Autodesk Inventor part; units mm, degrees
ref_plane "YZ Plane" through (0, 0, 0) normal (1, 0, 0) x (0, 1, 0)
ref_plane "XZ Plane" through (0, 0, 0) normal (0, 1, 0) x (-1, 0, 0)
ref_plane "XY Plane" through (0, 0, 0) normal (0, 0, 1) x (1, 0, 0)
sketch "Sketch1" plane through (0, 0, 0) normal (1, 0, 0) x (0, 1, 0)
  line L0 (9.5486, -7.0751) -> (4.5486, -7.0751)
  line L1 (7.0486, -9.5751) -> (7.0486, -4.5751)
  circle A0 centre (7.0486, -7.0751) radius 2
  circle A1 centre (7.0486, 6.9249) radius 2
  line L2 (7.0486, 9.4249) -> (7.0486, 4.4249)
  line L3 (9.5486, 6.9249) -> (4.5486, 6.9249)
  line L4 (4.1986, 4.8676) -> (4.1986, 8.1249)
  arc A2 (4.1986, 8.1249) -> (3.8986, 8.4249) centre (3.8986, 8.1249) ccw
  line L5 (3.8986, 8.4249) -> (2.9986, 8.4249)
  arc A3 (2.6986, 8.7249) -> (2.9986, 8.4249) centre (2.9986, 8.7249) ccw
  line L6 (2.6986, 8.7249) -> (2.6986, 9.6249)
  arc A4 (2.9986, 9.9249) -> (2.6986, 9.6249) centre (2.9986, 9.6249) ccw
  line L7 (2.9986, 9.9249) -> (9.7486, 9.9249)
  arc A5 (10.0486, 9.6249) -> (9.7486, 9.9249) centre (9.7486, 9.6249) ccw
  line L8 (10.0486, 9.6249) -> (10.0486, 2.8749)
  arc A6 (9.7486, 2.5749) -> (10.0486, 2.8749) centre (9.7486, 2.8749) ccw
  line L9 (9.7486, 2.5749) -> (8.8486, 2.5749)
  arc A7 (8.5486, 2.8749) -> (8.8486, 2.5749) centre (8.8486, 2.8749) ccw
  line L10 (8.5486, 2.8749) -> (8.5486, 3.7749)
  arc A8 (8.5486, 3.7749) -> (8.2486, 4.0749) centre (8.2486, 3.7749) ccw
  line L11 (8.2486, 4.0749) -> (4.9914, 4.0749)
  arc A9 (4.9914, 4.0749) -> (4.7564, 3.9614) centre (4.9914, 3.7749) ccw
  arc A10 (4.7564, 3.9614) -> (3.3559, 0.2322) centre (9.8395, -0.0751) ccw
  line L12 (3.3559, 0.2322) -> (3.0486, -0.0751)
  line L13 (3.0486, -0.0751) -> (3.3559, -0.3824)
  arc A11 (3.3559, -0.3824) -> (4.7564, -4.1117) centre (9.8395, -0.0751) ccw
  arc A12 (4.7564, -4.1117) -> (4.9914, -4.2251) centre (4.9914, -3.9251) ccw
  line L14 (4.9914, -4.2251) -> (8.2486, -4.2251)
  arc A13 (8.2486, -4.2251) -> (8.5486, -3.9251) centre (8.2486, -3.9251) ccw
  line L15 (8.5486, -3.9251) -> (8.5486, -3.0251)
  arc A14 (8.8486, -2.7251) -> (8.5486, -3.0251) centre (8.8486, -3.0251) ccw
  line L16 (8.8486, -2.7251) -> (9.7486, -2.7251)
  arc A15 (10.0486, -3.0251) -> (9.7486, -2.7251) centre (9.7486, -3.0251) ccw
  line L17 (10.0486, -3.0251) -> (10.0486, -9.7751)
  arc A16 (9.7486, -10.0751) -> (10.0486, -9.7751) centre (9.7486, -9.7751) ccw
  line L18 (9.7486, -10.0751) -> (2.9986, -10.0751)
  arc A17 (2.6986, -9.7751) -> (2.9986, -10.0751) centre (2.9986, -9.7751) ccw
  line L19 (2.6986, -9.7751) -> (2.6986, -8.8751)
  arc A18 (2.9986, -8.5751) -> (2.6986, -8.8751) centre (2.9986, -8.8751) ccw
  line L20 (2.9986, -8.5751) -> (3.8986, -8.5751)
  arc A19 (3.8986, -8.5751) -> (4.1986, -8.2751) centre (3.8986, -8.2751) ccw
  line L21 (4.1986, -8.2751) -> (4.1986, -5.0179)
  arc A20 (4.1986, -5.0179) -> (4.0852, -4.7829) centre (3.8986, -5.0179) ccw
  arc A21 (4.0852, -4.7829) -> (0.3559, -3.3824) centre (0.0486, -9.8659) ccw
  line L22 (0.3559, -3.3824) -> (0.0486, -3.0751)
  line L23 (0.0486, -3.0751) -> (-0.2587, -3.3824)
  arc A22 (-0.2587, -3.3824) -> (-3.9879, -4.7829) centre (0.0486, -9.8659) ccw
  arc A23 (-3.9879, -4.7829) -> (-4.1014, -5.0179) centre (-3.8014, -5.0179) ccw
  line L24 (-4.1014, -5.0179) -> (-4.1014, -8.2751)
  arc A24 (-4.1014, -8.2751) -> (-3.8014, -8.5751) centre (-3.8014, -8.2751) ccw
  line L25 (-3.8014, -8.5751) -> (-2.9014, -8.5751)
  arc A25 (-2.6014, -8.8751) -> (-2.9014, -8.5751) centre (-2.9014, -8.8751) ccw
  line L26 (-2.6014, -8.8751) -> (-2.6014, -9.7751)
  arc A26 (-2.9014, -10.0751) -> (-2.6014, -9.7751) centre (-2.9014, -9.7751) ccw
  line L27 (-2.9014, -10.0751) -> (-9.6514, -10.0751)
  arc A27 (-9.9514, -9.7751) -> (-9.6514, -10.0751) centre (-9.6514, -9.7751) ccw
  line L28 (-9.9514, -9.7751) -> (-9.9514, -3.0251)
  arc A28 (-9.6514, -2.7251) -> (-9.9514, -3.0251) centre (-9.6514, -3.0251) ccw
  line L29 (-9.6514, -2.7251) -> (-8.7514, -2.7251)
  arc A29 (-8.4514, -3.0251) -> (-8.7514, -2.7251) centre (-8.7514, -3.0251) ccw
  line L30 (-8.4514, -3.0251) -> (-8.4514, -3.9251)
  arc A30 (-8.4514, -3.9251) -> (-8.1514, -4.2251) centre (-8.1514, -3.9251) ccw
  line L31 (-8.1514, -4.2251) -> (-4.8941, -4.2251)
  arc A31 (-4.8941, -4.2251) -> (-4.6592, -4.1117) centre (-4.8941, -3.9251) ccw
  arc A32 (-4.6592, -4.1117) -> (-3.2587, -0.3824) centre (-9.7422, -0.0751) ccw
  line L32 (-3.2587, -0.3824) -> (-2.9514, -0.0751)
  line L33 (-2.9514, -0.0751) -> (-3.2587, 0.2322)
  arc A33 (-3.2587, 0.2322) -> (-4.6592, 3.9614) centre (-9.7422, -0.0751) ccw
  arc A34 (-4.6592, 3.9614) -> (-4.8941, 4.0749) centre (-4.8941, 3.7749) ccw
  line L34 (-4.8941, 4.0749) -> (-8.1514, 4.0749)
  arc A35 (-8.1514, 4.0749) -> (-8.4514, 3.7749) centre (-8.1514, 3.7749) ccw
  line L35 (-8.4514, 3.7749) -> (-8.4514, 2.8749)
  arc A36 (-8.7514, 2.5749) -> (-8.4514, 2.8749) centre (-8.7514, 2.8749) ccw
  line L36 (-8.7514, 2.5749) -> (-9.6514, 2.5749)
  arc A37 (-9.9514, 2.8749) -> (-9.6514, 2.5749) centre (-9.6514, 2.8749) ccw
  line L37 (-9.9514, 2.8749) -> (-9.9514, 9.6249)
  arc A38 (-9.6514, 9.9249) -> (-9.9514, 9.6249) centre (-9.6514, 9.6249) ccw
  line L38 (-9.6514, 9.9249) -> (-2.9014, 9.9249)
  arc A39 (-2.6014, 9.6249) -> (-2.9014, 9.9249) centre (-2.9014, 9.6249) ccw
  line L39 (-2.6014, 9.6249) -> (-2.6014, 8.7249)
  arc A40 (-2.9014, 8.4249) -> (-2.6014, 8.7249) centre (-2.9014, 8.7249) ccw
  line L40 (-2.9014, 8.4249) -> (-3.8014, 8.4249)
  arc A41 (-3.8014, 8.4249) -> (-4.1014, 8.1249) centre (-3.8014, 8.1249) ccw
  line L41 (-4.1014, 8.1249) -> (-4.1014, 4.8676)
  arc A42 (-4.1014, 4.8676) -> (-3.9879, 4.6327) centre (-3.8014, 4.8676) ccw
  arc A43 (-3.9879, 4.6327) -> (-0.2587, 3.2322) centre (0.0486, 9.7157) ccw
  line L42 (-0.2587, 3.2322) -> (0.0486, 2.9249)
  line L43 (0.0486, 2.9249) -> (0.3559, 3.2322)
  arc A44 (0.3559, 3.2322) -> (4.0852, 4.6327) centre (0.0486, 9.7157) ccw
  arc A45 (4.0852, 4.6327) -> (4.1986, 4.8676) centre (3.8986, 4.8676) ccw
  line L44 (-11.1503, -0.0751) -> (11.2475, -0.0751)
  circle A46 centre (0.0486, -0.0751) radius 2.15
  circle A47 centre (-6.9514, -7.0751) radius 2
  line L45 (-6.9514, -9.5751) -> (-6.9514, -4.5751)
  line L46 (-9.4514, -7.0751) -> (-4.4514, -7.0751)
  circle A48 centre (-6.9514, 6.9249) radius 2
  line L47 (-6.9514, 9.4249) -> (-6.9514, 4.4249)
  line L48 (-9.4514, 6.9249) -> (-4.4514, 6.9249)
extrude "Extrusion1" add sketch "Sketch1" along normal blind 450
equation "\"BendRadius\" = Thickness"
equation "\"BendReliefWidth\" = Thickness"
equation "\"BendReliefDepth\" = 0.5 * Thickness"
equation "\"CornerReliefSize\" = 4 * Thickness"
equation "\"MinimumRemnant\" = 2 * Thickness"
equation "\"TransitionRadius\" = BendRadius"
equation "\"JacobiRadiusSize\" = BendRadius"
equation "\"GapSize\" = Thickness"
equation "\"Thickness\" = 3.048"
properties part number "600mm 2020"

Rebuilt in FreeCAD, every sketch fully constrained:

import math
import FreeCAD as App
import Part
import Sketcher

doc = App.newDocument("Part")
body = doc.addObject("PartDesign::Body", "Body")

# Sketch on YZ plane
sketch1 = doc.addObject("Sketcher::SketchObject", "Sketch")
body.addObject(sketch1)
sketch1.AttachmentSupport = (doc.YZ_Plane, [""])
sketch1.MapMode = "FlatFace"
sketch1.addGeometry(Part.LineSegment(App.Vector(4.2, 8.12, 0), App.Vector(4.2, 4.87, 0)), False)
sketch1.addGeometry(Part.ArcOfCircle(Part.Circle(App.Vector(3.9, 4.87, 0), App.Vector(0, 0, 1), 0.3), math.radians(-52), math.radians(0)), False)
sketch1.addGeometry(Part.ArcOfCircle(Part.Circle(App.Vector(0.05, 9.72, 0), App.Vector(0, 0, 1), 6.49), math.radians(-87), math.radians(-52)), False)
sketch1.addGeometry(Part.LineSegment(App.Vector(0.36, 3.23, 0), App.Vector(0.05, 2.92, 0)), False)
sketch1.addGeometry(Part.LineSegment(App.Vector(0.05, 2.92, 0), App.Vector(-0.26, 3.23, 0)), False)
sketch1.addGeometry(Part.ArcOfCircle(Part.Circle(App.Vector(0.05, 9.72, 0), App.Vector(0, 0, 1), 6.49), math.radians(-128), math.radians(-93)), False)
sketch1.addGeometry(Part.ArcOfCircle(Part.Circle(App.Vector(-3.8, 4.87, 0), App.Vector(0, 0, 1), 0.3), math.radians(180), math.radians(232)), False)
sketch1.addGeometry(Part.LineSegment(App.Vector(-4.1, 4.87, 0), App.Vector(-4.1, 8.12, 0)), False)
sketch1.addGeometry(Part.ArcOfCircle(Part.Circle(App.Vector(-3.8, 8.12, 0), App.Vector(0, 0, 1), 0.3), math.radians(90), math.radians(180)), False)
sketch1.addGeometry(Part.LineSegment(App.Vector(-3.8, 8.42, 0), App.Vector(-2.9, 8.42, 0)), False)
sketch1.addGeometry(Part.ArcOfCircle(Part.Circle(App.Vector(-2.9, 8.72, 0), App.Vector(0, 0, 1), 0.3), math.radians(-90), math.radians(0)), False)
sketch1.addGeometry(Part.LineSegment(App.Vector(-2.6, 8.72, 0), App.Vector(-2.6, 9.62, 0)), False)
sketch1.addGeometry(Part.ArcOfCircle(Part.Circle(App.Vector(-2.9, 9.62, 0), App.Vector(0, 0, 1), 0.3), math.radians(0), math.radians(90)), False)
sketch1.addGeometry(Part.LineSegment(App.Vector(-2.9, 9.92, 0), App.Vector(-9.65, 9.92, 0)), False)
sketch1.addGeometry(Part.ArcOfCircle(Part.Circle(App.Vector(-9.65, 9.62, 0), App.Vector(0, 0, 1), 0.3), math.radians(90), math.radians(180)), False)
sketch1.addGeometry(Part.LineSegment(App.Vector(-9.95, 9.62, 0), App.Vector(-9.95, 2.87, 0)), False)
sketch1.addGeometry(Part.ArcOfCircle(Part.Circle(App.Vector(-9.65, 2.87, 0), App.Vector(0, 0, 1), 0.3), math.radians(180), math.radians(270)), False)
sketch1.addGeometry(Part.LineSegment(App.Vector(-9.65, 2.57, 0), App.Vector(-8.75, 2.57, 0)), False)
sketch1.addGeometry(Part.ArcOfCircle(Part.Circle(App.Vector(-8.75, 2.87, 0), App.Vector(0, 0, 1), 0.3), math.radians(-90), math.radians(0)), False)
sketch1.addGeometry(Part.LineSegment(App.Vector(-8.45, 2.87, 0), App.Vector(-8.45, 3.77, 0)), False)
sketch1.addGeometry(Part.ArcOfCircle(Part.Circle(App.Vector(-8.15, 3.77, 0), App.Vector(0, 0, 1), 0.3), math.radians(90), math.radians(180)), False)
sketch1.addGeometry(Part.LineSegment(App.Vector(-8.15, 4.07, 0), App.Vector(-4.89, 4.07, 0)), False)
sketch1.addGeometry(Part.ArcOfCircle(Part.Circle(App.Vector(-4.89, 3.77, 0), App.Vector(0, 0, 1), 0.3), math.radians(38), math.radians(90)), False)
sketch1.addGeometry(Part.ArcOfCircle(Part.Circle(App.Vector(-9.74, -0.08, 0), App.Vector(0, 0, 1), 6.49), math.radians(3), math.radians(38)), False)
sketch1.addGeometry(Part.LineSegment(App.Vector(-3.26, 0.23, 0), App.Vector(-2.95, -0.08, 0)), False)
sketch1.addGeometry(Part.LineSegment(App.Vector(-2.95, -0.08, 0), App.Vector(-3.26, -0.38, 0)), False)
sketch1.addGeometry(Part.ArcOfCircle(Part.Circle(App.Vector(-9.74, -0.08, 0), App.Vector(0, 0, 1), 6.49), math.radians(-38), math.radians(-3)), False)
sketch1.addGeometry(Part.ArcOfCircle(Part.Circle(App.Vector(-4.89, -3.93, 0), App.Vector(0, 0, 1), 0.3), math.radians(-90), math.radians(-38)), False)
sketch1.addGeometry(Part.LineSegment(App.Vector(-4.89, -4.23, 0), App.Vector(-8.15, -4.23, 0)), False)
sketch1.addGeometry(Part.ArcOfCircle(Part.Circle(App.Vector(-8.15, -3.93, 0), App.Vector(0, 0, 1), 0.3), math.radians(180), math.radians(270)), False)
sketch1.addGeometry(Part.LineSegment(App.Vector(-8.45, -3.93, 0), App.Vector(-8.45, -3.03, 0)), False)
sketch1.addGeometry(Part.ArcOfCircle(Part.Circle(App.Vector(-8.75, -3.03, 0), App.Vector(0, 0, 1), 0.3), math.radians(0), math.radians(90)), False)
sketch1.addGeometry(Part.LineSegment(App.Vector(-8.75, -2.73, 0), App.Vector(-9.65, -2.73, 0)), False)
sketch1.addGeometry(Part.ArcOfCircle(Part.Circle(App.Vector(-9.65, -3.03, 0), App.Vector(0, 0, 1), 0.3), math.radians(90), math.radians(180)), False)
sketch1.addGeometry(Part.LineSegment(App.Vector(-9.95, -3.03, 0), App.Vector(-9.95, -9.78, 0)), False)
sketch1.addGeometry(Part.ArcOfCircle(Part.Circle(App.Vector(-9.65, -9.78, 0), App.Vector(0, 0, 1), 0.3), math.radians(180), math.radians(270)), False)
sketch1.addGeometry(Part.LineSegment(App.Vector(-9.65, -10.08, 0), App.Vector(-2.9, -10.08, 0)), False)
sketch1.addGeometry(Part.ArcOfCircle(Part.Circle(App.Vector(-2.9, -9.78, 0), App.Vector(0, 0, 1), 0.3), math.radians(-90), math.radians(0)), False)
sketch1.addGeometry(Part.LineSegment(App.Vector(-2.6, -9.78, 0), App.Vector(-2.6, -8.88, 0)), False)
sketch1.addGeometry(Part.ArcOfCircle(Part.Circle(App.Vector(-2.9, -8.88, 0), App.Vector(0, 0, 1), 0.3), math.radians(0), math.radians(90)), False)
sketch1.addGeometry(Part.LineSegment(App.Vector(-2.9, -8.58, 0), App.Vector(-3.8, -8.58, 0)), False)
sketch1.addGeometry(Part.ArcOfCircle(Part.Circle(App.Vector(-3.8, -8.28, 0), App.Vector(0, 0, 1), 0.3), math.radians(180), math.radians(270)), False)
sketch1.addGeometry(Part.LineSegment(App.Vector(-4.1, -8.28, 0), App.Vector(-4.1, -5.02, 0)), False)
sketch1.addGeometry(Part.ArcOfCircle(Part.Circle(App.Vector(-3.8, -5.02, 0), App.Vector(0, 0, 1), 0.3), math.radians(128), math.radians(180)), False)
sketch1.addGeometry(Part.ArcOfCircle(Part.Circle(App.Vector(0.05, -9.87, 0), App.Vector(0, 0, 1), 6.49), math.radians(93), math.radians(128)), False)
sketch1.addGeometry(Part.LineSegment(App.Vector(-0.26, -3.38, 0), App.Vector(0.05, -3.08, 0)), False)
sketch1.addGeometry(Part.LineSegment(App.Vector(0.05, -3.08, 0), App.Vector(0.36, -3.38, 0)), False)
sketch1.addGeometry(Part.ArcOfCircle(Part.Circle(App.Vector(0.05, -9.87, 0), App.Vector(0, 0, 1), 6.49), math.radians(52), math.radians(87)), False)
sketch1.addGeometry(Part.ArcOfCircle(Part.Circle(App.Vector(3.9, -5.02, 0), App.Vector(0, 0, 1), 0.3), math.radians(0), math.radians(52)), False)
sketch1.addGeometry(Part.LineSegment(App.Vector(4.2, -5.02, 0), App.Vector(4.2, -8.28, 0)), False)
sketch1.addGeometry(Part.ArcOfCircle(Part.Circle(App.Vector(3.9, -8.28, 0), App.Vector(0, 0, 1), 0.3), math.radians(-90), math.radians(0)), False)
sketch1.addGeometry(Part.LineSegment(App.Vector(3.9, -8.58, 0), App.Vector(3, -8.58, 0)), False)
sketch1.addGeometry(Part.ArcOfCircle(Part.Circle(App.Vector(3, -8.88, 0), App.Vector(0, 0, 1), 0.3), math.radians(90), math.radians(180)), False)
sketch1.addGeometry(Part.LineSegment(App.Vector(2.7, -8.88, 0), App.Vector(2.7, -9.78, 0)), False)
sketch1.addGeometry(Part.ArcOfCircle(Part.Circle(App.Vector(3, -9.78, 0), App.Vector(0, 0, 1), 0.3), math.radians(180), math.radians(270)), False)
sketch1.addGeometry(Part.LineSegment(App.Vector(3, -10.08, 0), App.Vector(9.75, -10.08, 0)), False)
sketch1.addGeometry(Part.ArcOfCircle(Part.Circle(App.Vector(9.75, -9.78, 0), App.Vector(0, 0, 1), 0.3), math.radians(-90), math.radians(0)), False)
sketch1.addGeometry(Part.LineSegment(App.Vector(10.05, -9.78, 0), App.Vector(10.05, -3.03, 0)), False)
sketch1.addGeometry(Part.ArcOfCircle(Part.Circle(App.Vector(9.75, -3.03, 0), App.Vector(0, 0, 1), 0.3), math.radians(0), math.radians(90)), False)
sketch1.addGeometry(Part.LineSegment(App.Vector(9.75, -2.73, 0), App.Vector(8.85, -2.73, 0)), False)
sketch1.addGeometry(Part.ArcOfCircle(Part.Circle(App.Vector(8.85, -3.03, 0), App.Vector(0, 0, 1), 0.3), math.radians(90), math.radians(180)), False)
sketch1.addGeometry(Part.LineSegment(App.Vector(8.55, -3.03, 0), App.Vector(8.55, -3.93, 0)), False)
sketch1.addGeometry(Part.ArcOfCircle(Part.Circle(App.Vector(8.25, -3.93, 0), App.Vector(0, 0, 1), 0.3), math.radians(-90), math.radians(0)), False)
sketch1.addGeometry(Part.LineSegment(App.Vector(8.25, -4.23, 0), App.Vector(4.99, -4.23, 0)), False)
sketch1.addGeometry(Part.ArcOfCircle(Part.Circle(App.Vector(4.99, -3.93, 0), App.Vector(0, 0, 1), 0.3), math.radians(-142), math.radians(-90)), False)
sketch1.addGeometry(Part.ArcOfCircle(Part.Circle(App.Vector(9.84, -0.08, 0), App.Vector(0, 0, 1), 6.49), math.radians(-177), math.radians(-142)), False)
sketch1.addGeometry(Part.LineSegment(App.Vector(3.36, -0.38, 0), App.Vector(3.05, -0.08, 0)), False)
sketch1.addGeometry(Part.LineSegment(App.Vector(3.05, -0.08, 0), App.Vector(3.36, 0.23, 0)), False)
sketch1.addGeometry(Part.ArcOfCircle(Part.Circle(App.Vector(9.84, -0.08, 0), App.Vector(0, 0, 1), 6.49), math.radians(142), math.radians(177)), False)
sketch1.addGeometry(Part.ArcOfCircle(Part.Circle(App.Vector(4.99, 3.77, 0), App.Vector(0, 0, 1), 0.3), math.radians(90), math.radians(142)), False)
sketch1.addGeometry(Part.LineSegment(App.Vector(4.99, 4.07, 0), App.Vector(8.25, 4.07, 0)), False)
sketch1.addGeometry(Part.ArcOfCircle(Part.Circle(App.Vector(8.25, 3.77, 0), App.Vector(0, 0, 1), 0.3), math.radians(0), math.radians(90)), False)
sketch1.addGeometry(Part.LineSegment(App.Vector(8.55, 3.77, 0), App.Vector(8.55, 2.87, 0)), False)
sketch1.addGeometry(Part.ArcOfCircle(Part.Circle(App.Vector(8.85, 2.87, 0), App.Vector(0, 0, 1), 0.3), math.radians(180), math.radians(270)), False)
sketch1.addGeometry(Part.LineSegment(App.Vector(8.85, 2.57, 0), App.Vector(9.75, 2.57, 0)), False)
sketch1.addGeometry(Part.ArcOfCircle(Part.Circle(App.Vector(9.75, 2.87, 0), App.Vector(0, 0, 1), 0.3), math.radians(-90), math.radians(0)), False)
sketch1.addGeometry(Part.LineSegment(App.Vector(10.05, 2.87, 0), App.Vector(10.05, 9.62, 0)), False)
sketch1.addGeometry(Part.ArcOfCircle(Part.Circle(App.Vector(9.75, 9.62, 0), App.Vector(0, 0, 1), 0.3), math.radians(0), math.radians(90)), False)
sketch1.addGeometry(Part.LineSegment(App.Vector(9.75, 9.92, 0), App.Vector(3, 9.92, 0)), False)
sketch1.addGeometry(Part.ArcOfCircle(Part.Circle(App.Vector(3, 9.62, 0), App.Vector(0, 0, 1), 0.3), math.radians(90), math.radians(180)), False)
sketch1.addGeometry(Part.LineSegment(App.Vector(2.7, 9.62, 0), App.Vector(2.7, 8.72, 0)), False)
sketch1.addGeometry(Part.ArcOfCircle(Part.Circle(App.Vector(3, 8.72, 0), App.Vector(0, 0, 1), 0.3), math.radians(180), math.radians(270)), False)
sketch1.addGeometry(Part.LineSegment(App.Vector(3, 8.42, 0), App.Vector(3.9, 8.42, 0)), False)
sketch1.addGeometry(Part.ArcOfCircle(Part.Circle(App.Vector(3.9, 8.12, 0), App.Vector(0, 0, 1), 0.3), math.radians(0), math.radians(90)), False)
sketch1.addGeometry(Part.Circle(App.Vector(-6.95, 6.92, 0), App.Vector(0, 0, 1), 2), False)
sketch1.addGeometry(Part.Circle(App.Vector(7.05, 6.92, 0), App.Vector(0, 0, 1), 2), False)
sketch1.addGeometry(Part.Circle(App.Vector(7.05, -7.08, 0), App.Vector(0, 0, 1), 2), False)
sketch1.addGeometry(Part.Circle(App.Vector(-6.95, -7.08, 0), App.Vector(0, 0, 1), 2), False)
sketch1.addConstraint(Sketcher.Constraint("Tangent", 0, 2, 1, 2))
sketch1.addConstraint(Sketcher.Constraint("Tangent", 1, 1, 2, 2))
sketch1.addConstraint(Sketcher.Constraint("Coincident", 2, 1, 3, 1))
sketch1.addConstraint(Sketcher.Constraint("Coincident", 3, 2, 4, 1))
sketch1.addConstraint(Sketcher.Constraint("Coincident", 4, 2, 5, 2))
sketch1.addConstraint(Sketcher.Constraint("Tangent", 5, 1, 6, 2))
sketch1.addConstraint(Sketcher.Constraint("Tangent", 6, 1, 7, 1))
sketch1.addConstraint(Sketcher.Constraint("Tangent", 7, 2, 8, 2))
sketch1.addConstraint(Sketcher.Constraint("Tangent", 8, 1, 9, 1))
sketch1.addConstraint(Sketcher.Constraint("Tangent", 9, 2, 10, 1))
sketch1.addConstraint(Sketcher.Constraint("Tangent", 10, 2, 11, 1))
sketch1.addConstraint(Sketcher.Constraint("Tangent", 11, 2, 12, 1))
sketch1.addConstraint(Sketcher.Constraint("Tangent", 12, 2, 13, 1))
sketch1.addConstraint(Sketcher.Constraint("Tangent", 13, 2, 14, 1))
sketch1.addConstraint(Sketcher.Constraint("Tangent", 14, 2, 15, 1))
sketch1.addConstraint(Sketcher.Constraint("Tangent", 15, 2, 16, 1))
sketch1.addConstraint(Sketcher.Constraint("Tangent", 16, 2, 17, 1))
sketch1.addConstraint(Sketcher.Constraint("Tangent", 17, 2, 18, 1))
sketch1.addConstraint(Sketcher.Constraint("Tangent", 18, 2, 19, 1))
sketch1.addConstraint(Sketcher.Constraint("Tangent", 19, 2, 20, 2))
sketch1.addConstraint(Sketcher.Constraint("Tangent", 20, 1, 21, 1))
sketch1.addConstraint(Sketcher.Constraint("Tangent", 21, 2, 22, 2))
sketch1.addConstraint(Sketcher.Constraint("Tangent", 22, 1, 23, 2))
sketch1.addConstraint(Sketcher.Constraint("Coincident", 23, 1, 24, 1))
sketch1.addConstraint(Sketcher.Constraint("Coincident", 24, 2, 25, 1))
sketch1.addConstraint(Sketcher.Constraint("Coincident", 25, 2, 26, 2))
sketch1.addConstraint(Sketcher.Constraint("Tangent", 26, 1, 27, 2))
sketch1.addConstraint(Sketcher.Constraint("Tangent", 27, 1, 28, 1))
sketch1.addConstraint(Sketcher.Constraint("Tangent", 28, 2, 29, 2))
sketch1.addConstraint(Sketcher.Constraint("Tangent", 29, 1, 30, 1))
sketch1.addConstraint(Sketcher.Constraint("Tangent", 30, 2, 31, 1))
sketch1.addConstraint(Sketcher.Constraint("Tangent", 31, 2, 32, 1))
sketch1.addConstraint(Sketcher.Constraint("Tangent", 32, 2, 33, 1))
sketch1.addConstraint(Sketcher.Constraint("Tangent", 33, 2, 34, 1))
sketch1.addConstraint(Sketcher.Constraint("Tangent", 34, 2, 35, 1))
sketch1.addConstraint(Sketcher.Constraint("Tangent", 35, 2, 36, 1))
sketch1.addConstraint(Sketcher.Constraint("Tangent", 36, 2, 37, 1))
sketch1.addConstraint(Sketcher.Constraint("Tangent", 37, 2, 38, 1))
sketch1.addConstraint(Sketcher.Constraint("Tangent", 38, 2, 39, 1))
sketch1.addConstraint(Sketcher.Constraint("Tangent", 39, 2, 40, 1))
sketch1.addConstraint(Sketcher.Constraint("Tangent", 40, 2, 41, 2))
sketch1.addConstraint(Sketcher.Constraint("Tangent", 41, 1, 42, 1))
sketch1.addConstraint(Sketcher.Constraint("Tangent", 42, 2, 43, 2))
sketch1.addConstraint(Sketcher.Constraint("Tangent", 43, 1, 44, 2))
sketch1.addConstraint(Sketcher.Constraint("Coincident", 44, 1, 45, 1))
sketch1.addConstraint(Sketcher.Constraint("Coincident", 45, 2, 46, 1))
sketch1.addConstraint(Sketcher.Constraint("Coincident", 46, 2, 47, 2))
sketch1.addConstraint(Sketcher.Constraint("Tangent", 47, 1, 48, 2))
sketch1.addConstraint(Sketcher.Constraint("Tangent", 48, 1, 49, 1))
sketch1.addConstraint(Sketcher.Constraint("Tangent", 49, 2, 50, 2))
sketch1.addConstraint(Sketcher.Constraint("Tangent", 50, 1, 51, 1))
sketch1.addConstraint(Sketcher.Constraint("Tangent", 51, 2, 52, 1))
sketch1.addConstraint(Sketcher.Constraint("Tangent", 52, 2, 53, 1))
sketch1.addConstraint(Sketcher.Constraint("Tangent", 53, 2, 54, 1))
sketch1.addConstraint(Sketcher.Constraint("Tangent", 54, 2, 55, 1))
sketch1.addConstraint(Sketcher.Constraint("Tangent", 55, 2, 56, 1))
sketch1.addConstraint(Sketcher.Constraint("Tangent", 56, 2, 57, 1))
sketch1.addConstraint(Sketcher.Constraint("Tangent", 57, 2, 58, 1))
sketch1.addConstraint(Sketcher.Constraint("Tangent", 58, 2, 59, 1))
sketch1.addConstraint(Sketcher.Constraint("Tangent", 59, 2, 60, 1))
sketch1.addConstraint(Sketcher.Constraint("Tangent", 60, 2, 61, 1))
sketch1.addConstraint(Sketcher.Constraint("Tangent", 61, 2, 62, 2))
sketch1.addConstraint(Sketcher.Constraint("Tangent", 62, 1, 63, 1))
sketch1.addConstraint(Sketcher.Constraint("Tangent", 63, 2, 64, 2))
sketch1.addConstraint(Sketcher.Constraint("Tangent", 64, 1, 65, 2))
sketch1.addConstraint(Sketcher.Constraint("Coincident", 65, 1, 66, 1))
sketch1.addConstraint(Sketcher.Constraint("Coincident", 66, 2, 67, 1))
sketch1.addConstraint(Sketcher.Constraint("Coincident", 67, 2, 68, 2))
sketch1.addConstraint(Sketcher.Constraint("Tangent", 68, 1, 69, 2))
sketch1.addConstraint(Sketcher.Constraint("Tangent", 69, 1, 70, 1))
sketch1.addConstraint(Sketcher.Constraint("Tangent", 70, 2, 71, 2))
sketch1.addConstraint(Sketcher.Constraint("Tangent", 71, 1, 72, 1))
sketch1.addConstraint(Sketcher.Constraint("Tangent", 72, 2, 73, 1))
sketch1.addConstraint(Sketcher.Constraint("Tangent", 73, 2, 74, 1))
sketch1.addConstraint(Sketcher.Constraint("Tangent", 74, 2, 75, 1))
sketch1.addConstraint(Sketcher.Constraint("Tangent", 75, 2, 76, 1))
sketch1.addConstraint(Sketcher.Constraint("Tangent", 76, 2, 77, 1))
sketch1.addConstraint(Sketcher.Constraint("Tangent", 77, 2, 78, 1))
sketch1.addConstraint(Sketcher.Constraint("Tangent", 78, 2, 79, 1))
sketch1.addConstraint(Sketcher.Constraint("Tangent", 79, 2, 80, 1))
sketch1.addConstraint(Sketcher.Constraint("Tangent", 80, 2, 81, 1))
sketch1.addConstraint(Sketcher.Constraint("Tangent", 81, 2, 82, 1))
sketch1.addConstraint(Sketcher.Constraint("Tangent", 82, 2, 83, 2))
sketch1.addConstraint(Sketcher.Constraint("Tangent", 83, 1, 0, 1))
sketch1.addConstraint(Sketcher.Constraint("Vertical", 0))
sketch1.addConstraint(Sketcher.Constraint("Vertical", 7))
sketch1.addConstraint(Sketcher.Constraint("Horizontal", 9))
sketch1.addConstraint(Sketcher.Constraint("Vertical", 11))
sketch1.addConstraint(Sketcher.Constraint("Horizontal", 13))
sketch1.addConstraint(Sketcher.Constraint("Vertical", 15))
sketch1.addConstraint(Sketcher.Constraint("Horizontal", 17))
sketch1.addConstraint(Sketcher.Constraint("Vertical", 19))
sketch1.addConstraint(Sketcher.Constraint("Horizontal", 21))
sketch1.addConstraint(Sketcher.Constraint("Horizontal", 28))
sketch1.addConstraint(Sketcher.Constraint("Vertical", 30))
sketch1.addConstraint(Sketcher.Constraint("Horizontal", 32))
sketch1.addConstraint(Sketcher.Constraint("Vertical", 34))
sketch1.addConstraint(Sketcher.Constraint("Horizontal", 36))
sketch1.addConstraint(Sketcher.Constraint("Vertical", 38))
sketch1.addConstraint(Sketcher.Constraint("Horizontal", 40))
sketch1.addConstraint(Sketcher.Constraint("Vertical", 42))
sketch1.addConstraint(Sketcher.Constraint("Vertical", 49))
sketch1.addConstraint(Sketcher.Constraint("Horizontal", 51))
sketch1.addConstraint(Sketcher.Constraint("Vertical", 53))
sketch1.addConstraint(Sketcher.Constraint("Horizontal", 55))
sketch1.addConstraint(Sketcher.Constraint("Vertical", 57))
sketch1.addConstraint(Sketcher.Constraint("Horizontal", 59))
sketch1.addConstraint(Sketcher.Constraint("Vertical", 61))
sketch1.addConstraint(Sketcher.Constraint("Horizontal", 63))
sketch1.addConstraint(Sketcher.Constraint("Horizontal", 70))
sketch1.addConstraint(Sketcher.Constraint("Vertical", 72))
sketch1.addConstraint(Sketcher.Constraint("Horizontal", 74))
sketch1.addConstraint(Sketcher.Constraint("Vertical", 76))
sketch1.addConstraint(Sketcher.Constraint("Horizontal", 78))
sketch1.addConstraint(Sketcher.Constraint("Vertical", 80))
sketch1.addConstraint(Sketcher.Constraint("Horizontal", 82))
sketch1.addConstraint(Sketcher.Constraint("Coincident", 5, 3, 2, 3))
sketch1.addConstraint(Sketcher.Constraint("Coincident", 26, 3, 23, 3))
sketch1.addConstraint(Sketcher.Constraint("Coincident", 47, 3, 44, 3))
sketch1.addConstraint(Sketcher.Constraint("Coincident", 68, 3, 65, 3))
sketch1.addConstraint(Sketcher.Constraint("Equal", 2, 5))
sketch1.addConstraint(Sketcher.Constraint("Equal", 1, 6))
sketch1.addConstraint(Sketcher.Constraint("Equal", 6, 8))
sketch1.addConstraint(Sketcher.Constraint("Equal", 8, 10))
sketch1.addConstraint(Sketcher.Constraint("Equal", 10, 12))
sketch1.addConstraint(Sketcher.Constraint("Equal", 12, 14))
sketch1.addConstraint(Sketcher.Constraint("Equal", 14, 16))
sketch1.addConstraint(Sketcher.Constraint("Equal", 16, 18))
sketch1.addConstraint(Sketcher.Constraint("Equal", 18, 20))
sketch1.addConstraint(Sketcher.Constraint("Equal", 20, 22))
sketch1.addConstraint(Sketcher.Constraint("Equal", 5, 23))
sketch1.addConstraint(Sketcher.Constraint("Equal", 23, 26))
sketch1.addConstraint(Sketcher.Constraint("Equal", 22, 27))
sketch1.addConstraint(Sketcher.Constraint("Equal", 27, 29))
sketch1.addConstraint(Sketcher.Constraint("Equal", 29, 31))
sketch1.addConstraint(Sketcher.Constraint("Equal", 31, 33))
sketch1.addConstraint(Sketcher.Constraint("Equal", 33, 35))
sketch1.addConstraint(Sketcher.Constraint("Equal", 35, 37))
sketch1.addConstraint(Sketcher.Constraint("Equal", 37, 39))
sketch1.addConstraint(Sketcher.Constraint("Equal", 39, 41))
sketch1.addConstraint(Sketcher.Constraint("Equal", 41, 43))
sketch1.addConstraint(Sketcher.Constraint("Equal", 26, 44))
sketch1.addConstraint(Sketcher.Constraint("Equal", 44, 47))
sketch1.addConstraint(Sketcher.Constraint("Equal", 43, 48))
sketch1.addConstraint(Sketcher.Constraint("Equal", 48, 50))
sketch1.addConstraint(Sketcher.Constraint("Equal", 50, 52))
sketch1.addConstraint(Sketcher.Constraint("Equal", 52, 54))
sketch1.addConstraint(Sketcher.Constraint("Equal", 54, 56))
sketch1.addConstraint(Sketcher.Constraint("Equal", 56, 58))
sketch1.addConstraint(Sketcher.Constraint("Equal", 58, 60))
sketch1.addConstraint(Sketcher.Constraint("Equal", 60, 62))
sketch1.addConstraint(Sketcher.Constraint("Equal", 62, 64))
sketch1.addConstraint(Sketcher.Constraint("Equal", 47, 65))
sketch1.addConstraint(Sketcher.Constraint("Equal", 65, 68))
sketch1.addConstraint(Sketcher.Constraint("Equal", 64, 69))
sketch1.addConstraint(Sketcher.Constraint("Equal", 69, 71))
sketch1.addConstraint(Sketcher.Constraint("Equal", 71, 73))
sketch1.addConstraint(Sketcher.Constraint("Equal", 73, 75))
sketch1.addConstraint(Sketcher.Constraint("Equal", 75, 77))
sketch1.addConstraint(Sketcher.Constraint("Equal", 77, 79))
sketch1.addConstraint(Sketcher.Constraint("Equal", 79, 81))
sketch1.addConstraint(Sketcher.Constraint("Equal", 81, 83))
sketch1.addConstraint(Sketcher.Constraint("Equal", 84, 85))
sketch1.addConstraint(Sketcher.Constraint("Equal", 85, 86))
sketch1.addConstraint(Sketcher.Constraint("Equal", 86, 87))
sketch1.addConstraint(Sketcher.Constraint("Perpendicular", 3, 4))
sketch1.addConstraint(Sketcher.Constraint("Parallel", 4, 24))
sketch1.addConstraint(Sketcher.Constraint("Perpendicular", 24, 25))
sketch1.addConstraint(Sketcher.Constraint("Parallel", 25, 45))
sketch1.addConstraint(Sketcher.Constraint("Perpendicular", 45, 46))
sketch1.addConstraint(Sketcher.Constraint("Parallel", 46, 66))
sketch1.addConstraint(Sketcher.Constraint("Perpendicular", 66, 67))
sketch1.addConstraint(Sketcher.Constraint("Horizontal", 1, 3, 6, 3))
sketch1.addConstraint(Sketcher.Constraint("Horizontal", 43, 3, 48, 3))
sketch1.addConstraint(Sketcher.Constraint("Horizontal", 41, 3, 50, 3))
sketch1.addConstraint(Sketcher.Constraint("Horizontal", 37, 3, 54, 3))
sketch1.addConstraint(Sketcher.Constraint("Horizontal", 33, 3, 58, 3))
sketch1.addConstraint(Sketcher.Constraint("Horizontal", 29, 3, 62, 3))
sketch1.addConstraint(Sketcher.Constraint("Horizontal", 26, 3, 65, 3))
sketch1.addConstraint(Sketcher.Constraint("Horizontal", 22, 3, 69, 3))
sketch1.addConstraint(Sketcher.Constraint("Horizontal", 18, 3, 73, 3))
sketch1.addConstraint(Sketcher.Constraint("Horizontal", 14, 3, 77, 3))
sketch1.addConstraint(Sketcher.Constraint("Horizontal", 10, 3, 81, 3))
sketch1.addConstraint(Sketcher.Constraint("Horizontal", 84, 3, 85, 3))
sketch1.addConstraint(Sketcher.Constraint("Horizontal", 86, 3, 87, 3))
sketch1.addConstraint(Sketcher.Constraint("Horizontal", 2, 1, 4, 2))
sketch1.addConstraint(Sketcher.Constraint("Horizontal", 68, 3, 24, 2))
sketch1.addConstraint(Sketcher.Constraint("Horizontal", 44, 1, 46, 2))
sketch1.addConstraint(Sketcher.Constraint("Horizontal", 25, 2, 65, 1))
sketch1.addConstraint(Sketcher.Constraint("Horizontal", 24, 2, 66, 2))
sketch1.addConstraint(Sketcher.Constraint("Horizontal", 23, 1, 67, 2))
sketch1.addConstraint(Sketcher.Constraint("Vertical", 22, 3, 27, 3))
sketch1.addConstraint(Sketcher.Constraint("Vertical", 20, 3, 29, 3))
sketch1.addConstraint(Sketcher.Constraint("Vertical", 16, 3, 33, 3))
sketch1.addConstraint(Sketcher.Constraint("Vertical", 12, 3, 37, 3))
sketch1.addConstraint(Sketcher.Constraint("Vertical", 8, 3, 41, 3))
sketch1.addConstraint(Sketcher.Constraint("Vertical", 5, 3, 44, 3))
sketch1.addConstraint(Sketcher.Constraint("Vertical", 62, 3, 71, 3))
sketch1.addConstraint(Sketcher.Constraint("Vertical", 58, 3, 75, 3))
sketch1.addConstraint(Sketcher.Constraint("Vertical", 54, 3, 79, 3))
sketch1.addConstraint(Sketcher.Constraint("Vertical", 85, 3, 86, 3))
sketch1.addConstraint(Sketcher.Constraint("Vertical", 84, 3, 87, 3))
sketch1.addConstraint(Sketcher.Constraint("Vertical", 4, 2, 44, 1))
sketch1.addConstraint(Sketcher.Constraint("Equal", 9, 17))
sketch1.addConstraint(Sketcher.Constraint("Equal", 40, 51))
sketch1.addConstraint(Sketcher.Constraint("Equal", 36, 55))
sketch1.addConstraint(Sketcher.Constraint("Equal", 51, 59))
sketch1.addConstraint(Sketcher.Constraint("Equal", 28, 63))
sketch1.addConstraint(Sketcher.Constraint("Equal", 70, 0))
sketch1.addConstraint(Sketcher.Constraint("Equal", 82, 11))
sketch1.addConstraint(Sketcher.Constraint("Equal", 78, 15))
sketch1.addConstraint(Sketcher.Constraint("Equal", 11, 19))
sketch1.addConstraint(Sketcher.Constraint("Equal", 19, 30))
sketch1.addConstraint(Sketcher.Constraint("Equal", 15, 34))
sketch1.addConstraint(Sketcher.Constraint("Equal", 30, 38))
sketch1.addConstraint(Sketcher.Constraint("Equal", 7, 42))
sketch1.addConstraint(Sketcher.Constraint("Equal", 4, 24))
sketch1.addConstraint(Sketcher.Constraint("Diameter", 84, 4.0))
sketch1.addConstraint(Sketcher.Constraint("Radius", 1, 0.3))
sketch1.addConstraint(Sketcher.Constraint("DistanceX", 9, 1, 9, 2, 0.9))
sketch1.addConstraint(Sketcher.Constraint("DistanceX", 13, 2, 13, 1, 6.75))
sketch1.addConstraint(Sketcher.Constraint("Radius", 2, 6.4908))
sketch1.addConstraint(Sketcher.Constraint("DistanceX", 21, 1, 21, 2, 3.2573))
sketch1.addConstraint(Sketcher.Constraint("DistanceY", -1, 1, 8, 3, 8.125))
sketch1.addConstraint(Sketcher.Constraint("DistanceX", 22, 3, -1, 1, 4.894))
sketch1.addConstraint(Sketcher.Constraint("DistanceY", 23, 3, -1, 1, 0.075))
sketch1.addConstraint(Sketcher.Constraint("DistanceY", 44, 3, -1, 1, 9.866))
sketch1.addConstraint(Sketcher.Constraint("DistanceY", -1, 1, 84, 3, 6.925))
sketch1.addConstraint(Sketcher.Constraint("DistanceY", 86, 3, -1, 1, 7.075))
sketch1.addConstraint(Sketcher.Constraint("DistanceX", -1, 1, 2, 1, 0.356))
sketch1.addConstraint(Sketcher.Constraint("DistanceX", 84, 3, -1, 1, 6.9514))
sketch1.addConstraint(Sketcher.Constraint("DistanceX", -1, 1, 85, 3, 7.0486))
pad1 = doc.addObject("PartDesign::Pad", "Pad")
body.addObject(pad1)
pad1.Profile = sketch1
pad1.Length = 450

doc.recompute()
